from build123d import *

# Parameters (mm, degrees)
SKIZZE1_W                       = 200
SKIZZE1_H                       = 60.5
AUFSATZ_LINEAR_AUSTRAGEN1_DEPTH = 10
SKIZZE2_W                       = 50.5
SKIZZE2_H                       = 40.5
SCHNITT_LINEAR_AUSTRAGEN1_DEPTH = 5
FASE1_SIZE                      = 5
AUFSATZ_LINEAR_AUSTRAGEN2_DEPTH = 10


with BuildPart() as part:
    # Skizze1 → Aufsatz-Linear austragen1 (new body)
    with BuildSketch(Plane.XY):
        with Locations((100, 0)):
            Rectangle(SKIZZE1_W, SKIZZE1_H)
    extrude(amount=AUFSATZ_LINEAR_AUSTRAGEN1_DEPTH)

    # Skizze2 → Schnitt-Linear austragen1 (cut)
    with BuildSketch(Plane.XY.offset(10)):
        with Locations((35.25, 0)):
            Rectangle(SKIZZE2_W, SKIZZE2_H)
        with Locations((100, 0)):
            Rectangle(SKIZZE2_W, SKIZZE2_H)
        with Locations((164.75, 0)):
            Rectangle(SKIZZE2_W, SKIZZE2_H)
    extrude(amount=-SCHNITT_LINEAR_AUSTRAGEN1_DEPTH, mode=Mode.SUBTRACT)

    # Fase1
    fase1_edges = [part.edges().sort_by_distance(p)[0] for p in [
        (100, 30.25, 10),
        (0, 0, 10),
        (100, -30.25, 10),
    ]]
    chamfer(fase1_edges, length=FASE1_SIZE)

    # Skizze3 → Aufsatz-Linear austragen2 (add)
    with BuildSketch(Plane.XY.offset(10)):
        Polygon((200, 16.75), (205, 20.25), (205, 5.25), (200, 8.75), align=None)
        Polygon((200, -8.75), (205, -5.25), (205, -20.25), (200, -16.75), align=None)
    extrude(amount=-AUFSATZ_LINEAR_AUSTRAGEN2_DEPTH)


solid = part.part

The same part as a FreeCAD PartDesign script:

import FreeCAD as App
import Part
import Sketcher

V = App.Vector


def edges_at(feature, points):
    """Names of the edges that pass closest to the given points."""
    edges = feature.Shape.Edges
    near = lambda p: min(range(len(edges)), key=lambda i: edges[i].distToShape(Part.Vertex(*p))[0])
    return sorted({f"Edge{near(p) + 1}" for p in points})

doc = App.newDocument("Part")
body = doc.addObject("PartDesign::Body", "Body")

# Sketch on XY plane
sketch1 = doc.addObject("Sketcher::SketchObject", "Sketch")
body.addObject(sketch1)
sketch1.AttachmentSupport = (doc.XY_Plane, [""])
sketch1.MapMode = "FlatFace"
sketch1.addGeometry(Part.LineSegment(V(0, 30, 0), V(0, -30, 0)), False)
sketch1.addGeometry(Part.LineSegment(V(0, -30, 0), V(200, -30, 0)), False)
sketch1.addGeometry(Part.LineSegment(V(200, -30, 0), V(200, 30, 0)), False)
sketch1.addGeometry(Part.LineSegment(V(200, 30, 0), V(0, 30, 0)), False)
sketch1.addConstraint(Sketcher.Constraint("Coincident", 0, 2, 1, 1))
sketch1.addConstraint(Sketcher.Constraint("Coincident", 1, 2, 2, 1))
sketch1.addConstraint(Sketcher.Constraint("Coincident", 2, 2, 3, 1))
sketch1.addConstraint(Sketcher.Constraint("Coincident", 3, 2, 0, 1))
sketch1.addConstraint(Sketcher.Constraint("Vertical", 0))
sketch1.addConstraint(Sketcher.Constraint("Horizontal", 1))
sketch1.addConstraint(Sketcher.Constraint("Vertical", 2))
sketch1.addConstraint(Sketcher.Constraint("Horizontal", 3))
sketch1.addConstraint(Sketcher.Constraint("Symmetric", 0, 2, 3, 2, -1, 1))
sketch1.addConstraint(Sketcher.Constraint("DistanceX", 1, 1, 1, 2, 200.0))
sketch1.addConstraint(Sketcher.Constraint("DistanceY", 0, 2, 0, 1, 60.5))
pad1 = doc.addObject("PartDesign::Pad", "Pad")
body.addObject(pad1)
pad1.Profile = sketch1
pad1.Length = 10

# Sketch on XY plane
sketch2 = doc.addObject("Sketcher::SketchObject", "Sketch001")
body.addObject(sketch2)
sketch2.AttachmentSupport = (doc.XY_Plane, [""])
sketch2.MapMode = "FlatFace"
sketch2.AttachmentOffset = App.Placement(V(0, 0, 10), App.Rotation())
sketch2.addGeometry(Part.LineSegment(V(10, 20, 0), V(10, -20, 0)), False)
sketch2.addGeometry(Part.LineSegment(V(10, -20, 0), V(60, -20, 0)), False)
sketch2.addGeometry(Part.LineSegment(V(60, -20, 0), V(60, 20, 0)), False)
sketch2.addGeometry(Part.LineSegment(V(60, 20, 0), V(10, 20, 0)), False)
sketch2.addGeometry(Part.LineSegment(V(75, 20, 0), V(75, -20, 0)), False)
sketch2.addGeometry(Part.LineSegment(V(75, -20, 0), V(125, -20, 0)), False)
sketch2.addGeometry(Part.LineSegment(V(125, -20, 0), V(125, 20, 0)), False)
sketch2.addGeometry(Part.LineSegment(V(125, 20, 0), V(75, 20, 0)), False)
sketch2.addGeometry(Part.LineSegment(V(140, 20, 0), V(140, -20, 0)), False)
sketch2.addGeometry(Part.LineSegment(V(140, -20, 0), V(190, -20, 0)), False)
sketch2.addGeometry(Part.LineSegment(V(190, -20, 0), V(190, 20, 0)), False)
sketch2.addGeometry(Part.LineSegment(V(190, 20, 0), V(140, 20, 0)), False)
sketch2.addConstraint(Sketcher.Constraint("Coincident", 0, 2, 1, 1))
sketch2.addConstraint(Sketcher.Constraint("Coincident", 1, 2, 2, 1))
sketch2.addConstraint(Sketcher.Constraint("Coincident", 2, 2, 3, 1))
sketch2.addConstraint(Sketcher.Constraint("Coincident", 3, 2, 0, 1))
sketch2.addConstraint(Sketcher.Constraint("Coincident", 4, 2, 5, 1))
sketch2.addConstraint(Sketcher.Constraint("Coincident", 5, 2, 6, 1))
sketch2.addConstraint(Sketcher.Constraint("Coincident", 6, 2, 7, 1))
sketch2.addConstraint(Sketcher.Constraint("Coincident", 7, 2, 4, 1))
sketch2.addConstraint(Sketcher.Constraint("Coincident", 8, 2, 9, 1))
sketch2.addConstraint(Sketcher.Constraint("Coincident", 9, 2, 10, 1))
sketch2.addConstraint(Sketcher.Constraint("Coincident", 10, 2, 11, 1))
sketch2.addConstraint(Sketcher.Constraint("Coincident", 11, 2, 8, 1))
sketch2.addConstraint(Sketcher.Constraint("Vertical", 0))
sketch2.addConstraint(Sketcher.Constraint("Horizontal", 1))
sketch2.addConstraint(Sketcher.Constraint("Vertical", 2))
sketch2.addConstraint(Sketcher.Constraint("Horizontal", 3))
sketch2.addConstraint(Sketcher.Constraint("Vertical", 4))
sketch2.addConstraint(Sketcher.Constraint("Horizontal", 5))
sketch2.addConstraint(Sketcher.Constraint("Vertical", 6))
sketch2.addConstraint(Sketcher.Constraint("Horizontal", 7))
sketch2.addConstraint(Sketcher.Constraint("Vertical", 8))
sketch2.addConstraint(Sketcher.Constraint("Horizontal", 9))
sketch2.addConstraint(Sketcher.Constraint("Vertical", 10))
sketch2.addConstraint(Sketcher.Constraint("Horizontal", 11))
sketch2.addConstraint(Sketcher.Constraint("Horizontal", 1, 2, 4, 2))
sketch2.addConstraint(Sketcher.Constraint("Horizontal", 3, 2, 6, 2))
sketch2.addConstraint(Sketcher.Constraint("Horizontal", 5, 2, 8, 2))
sketch2.addConstraint(Sketcher.Constraint("Horizontal", 7, 2, 10, 2))
sketch2.addConstraint(Sketcher.Constraint("Equal", 3, 5))
sketch2.addConstraint(Sketcher.Constraint("Equal", 7, 9))
sketch2.addConstraint(Sketcher.Constraint("DistanceX", 1, 1, 1, 2, 50.5))
sketch2.addConstraint(Sketcher.Constraint("DistanceY", 0, 2, 0, 1, 40.5))
sketch2.addConstraint(Sketcher.Constraint("DistanceX", -1, 1, 0, 2, 10.0))
sketch2.addConstraint(Sketcher.Constraint("DistanceX", -1, 1, 9, 2, 190.0))
sketch2.addConstraint(Sketcher.Constraint("DistanceY", 0, 2, -1, 1, 20.25))
sketch2.addConstraint(Sketcher.Constraint("DistanceX", -1, 1, 4, 2, 74.75))
pocket1 = doc.addObject("PartDesign::Pocket", "Pocket")
body.addObject(pocket1)
pocket1.Profile = sketch2
pocket1.Length = 5
doc.recompute()

chamfer = doc.addObject("PartDesign::Chamfer", "Chamfer")
body.addObject(chamfer)
chamfer.Base = (pocket1, edges_at(pocket1, [(100, 30.25, 10), (0, 0, 10), (100, -30.25, 10)]))
chamfer.Size = 5

# Sketch on XY plane
sketch3 = doc.addObject("Sketcher::SketchObject", "Sketch002")
body.addObject(sketch3)
sketch3.AttachmentSupport = (doc.XY_Plane, [""])
sketch3.MapMode = "FlatFace"
sketch3.AttachmentOffset = App.Placement(V(0, 0, 10), App.Rotation())
sketch3.addGeometry(Part.LineSegment(V(205, 20, 0), V(200, 17, 0)), False)
sketch3.addGeometry(Part.LineSegment(V(200, 17, 0), V(200, 9, 0)), False)
sketch3.addGeometry(Part.LineSegment(V(200, 9, 0), V(205, 5, 0)), False)
sketch3.addGeometry(Part.LineSegment(V(205, 5, 0), V(205, 20, 0)), False)
sketch3.addGeometry(Part.LineSegment(V(205, -5, 0), V(200, -9, 0)), False)
sketch3.addGeometry(Part.LineSegment(V(200, -9, 0), V(200, -17, 0)), False)
sketch3.addGeometry(Part.LineSegment(V(200, -17, 0), V(205, -20, 0)), False)
sketch3.addGeometry(Part.LineSegment(V(205, -20, 0), V(205, -5, 0)), False)
sketch3.addConstraint(Sketcher.Constraint("Coincident", 0, 2, 1, 1))
sketch3.addConstraint(Sketcher.Constraint("Coincident", 1, 2, 2, 1))
sketch3.addConstraint(Sketcher.Constraint("Coincident", 2, 2, 3, 1))
sketch3.addConstraint(Sketcher.Constraint("Coincident", 3, 2, 0, 1))
sketch3.addConstraint(Sketcher.Constraint("Coincident", 4, 2, 5, 1))
sketch3.addConstraint(Sketcher.Constraint("Coincident", 5, 2, 6, 1))
sketch3.addConstraint(Sketcher.Constraint("Coincident", 6, 2, 7, 1))
sketch3.addConstraint(Sketcher.Constraint("Coincident", 7, 2, 4, 1))
sketch3.addConstraint(Sketcher.Constraint("Vertical", 1))
sketch3.addConstraint(Sketcher.Constraint("Vertical", 3))
sketch3.addConstraint(Sketcher.Constraint("Vertical", 5))
sketch3.addConstraint(Sketcher.Constraint("Vertical", 7))
sketch3.addConstraint(Sketcher.Constraint("Symmetric", 1, 2, 4, 2, -1))
sketch3.addConstraint(Sketcher.Constraint("Symmetric", 3, 2, 6, 2, -1))
sketch3.addConstraint(Sketcher.Constraint("Parallel", 0, 4))
sketch3.addConstraint(Sketcher.Constraint("Parallel", 2, 6))
sketch3.addConstraint(Sketcher.Constraint("Equal", 1, 5))
sketch3.addConstraint(Sketcher.Constraint("DistanceY", 1, 2, 1, 1, 8.0))
sketch3.addConstraint(Sketcher.Constraint("DistanceY", 3, 1, 3, 2, 15.0))
sketch3.addConstraint(Sketcher.Constraint("DistanceX", -1, 1, 0, 2, 200.0))
sketch3.addConstraint(Sketcher.Constraint("DistanceX", -1, 1, 2, 2, 205.0))
sketch3.addConstraint(Sketcher.Constraint("DistanceY", 4, 2, 2, 2, 14.0))
pad2 = doc.addObject("PartDesign::Pad", "Pad001")
body.addObject(pad2)
pad2.Profile = sketch3
pad2.Length = 10
pad2.Reversed = True

doc.recompute()
